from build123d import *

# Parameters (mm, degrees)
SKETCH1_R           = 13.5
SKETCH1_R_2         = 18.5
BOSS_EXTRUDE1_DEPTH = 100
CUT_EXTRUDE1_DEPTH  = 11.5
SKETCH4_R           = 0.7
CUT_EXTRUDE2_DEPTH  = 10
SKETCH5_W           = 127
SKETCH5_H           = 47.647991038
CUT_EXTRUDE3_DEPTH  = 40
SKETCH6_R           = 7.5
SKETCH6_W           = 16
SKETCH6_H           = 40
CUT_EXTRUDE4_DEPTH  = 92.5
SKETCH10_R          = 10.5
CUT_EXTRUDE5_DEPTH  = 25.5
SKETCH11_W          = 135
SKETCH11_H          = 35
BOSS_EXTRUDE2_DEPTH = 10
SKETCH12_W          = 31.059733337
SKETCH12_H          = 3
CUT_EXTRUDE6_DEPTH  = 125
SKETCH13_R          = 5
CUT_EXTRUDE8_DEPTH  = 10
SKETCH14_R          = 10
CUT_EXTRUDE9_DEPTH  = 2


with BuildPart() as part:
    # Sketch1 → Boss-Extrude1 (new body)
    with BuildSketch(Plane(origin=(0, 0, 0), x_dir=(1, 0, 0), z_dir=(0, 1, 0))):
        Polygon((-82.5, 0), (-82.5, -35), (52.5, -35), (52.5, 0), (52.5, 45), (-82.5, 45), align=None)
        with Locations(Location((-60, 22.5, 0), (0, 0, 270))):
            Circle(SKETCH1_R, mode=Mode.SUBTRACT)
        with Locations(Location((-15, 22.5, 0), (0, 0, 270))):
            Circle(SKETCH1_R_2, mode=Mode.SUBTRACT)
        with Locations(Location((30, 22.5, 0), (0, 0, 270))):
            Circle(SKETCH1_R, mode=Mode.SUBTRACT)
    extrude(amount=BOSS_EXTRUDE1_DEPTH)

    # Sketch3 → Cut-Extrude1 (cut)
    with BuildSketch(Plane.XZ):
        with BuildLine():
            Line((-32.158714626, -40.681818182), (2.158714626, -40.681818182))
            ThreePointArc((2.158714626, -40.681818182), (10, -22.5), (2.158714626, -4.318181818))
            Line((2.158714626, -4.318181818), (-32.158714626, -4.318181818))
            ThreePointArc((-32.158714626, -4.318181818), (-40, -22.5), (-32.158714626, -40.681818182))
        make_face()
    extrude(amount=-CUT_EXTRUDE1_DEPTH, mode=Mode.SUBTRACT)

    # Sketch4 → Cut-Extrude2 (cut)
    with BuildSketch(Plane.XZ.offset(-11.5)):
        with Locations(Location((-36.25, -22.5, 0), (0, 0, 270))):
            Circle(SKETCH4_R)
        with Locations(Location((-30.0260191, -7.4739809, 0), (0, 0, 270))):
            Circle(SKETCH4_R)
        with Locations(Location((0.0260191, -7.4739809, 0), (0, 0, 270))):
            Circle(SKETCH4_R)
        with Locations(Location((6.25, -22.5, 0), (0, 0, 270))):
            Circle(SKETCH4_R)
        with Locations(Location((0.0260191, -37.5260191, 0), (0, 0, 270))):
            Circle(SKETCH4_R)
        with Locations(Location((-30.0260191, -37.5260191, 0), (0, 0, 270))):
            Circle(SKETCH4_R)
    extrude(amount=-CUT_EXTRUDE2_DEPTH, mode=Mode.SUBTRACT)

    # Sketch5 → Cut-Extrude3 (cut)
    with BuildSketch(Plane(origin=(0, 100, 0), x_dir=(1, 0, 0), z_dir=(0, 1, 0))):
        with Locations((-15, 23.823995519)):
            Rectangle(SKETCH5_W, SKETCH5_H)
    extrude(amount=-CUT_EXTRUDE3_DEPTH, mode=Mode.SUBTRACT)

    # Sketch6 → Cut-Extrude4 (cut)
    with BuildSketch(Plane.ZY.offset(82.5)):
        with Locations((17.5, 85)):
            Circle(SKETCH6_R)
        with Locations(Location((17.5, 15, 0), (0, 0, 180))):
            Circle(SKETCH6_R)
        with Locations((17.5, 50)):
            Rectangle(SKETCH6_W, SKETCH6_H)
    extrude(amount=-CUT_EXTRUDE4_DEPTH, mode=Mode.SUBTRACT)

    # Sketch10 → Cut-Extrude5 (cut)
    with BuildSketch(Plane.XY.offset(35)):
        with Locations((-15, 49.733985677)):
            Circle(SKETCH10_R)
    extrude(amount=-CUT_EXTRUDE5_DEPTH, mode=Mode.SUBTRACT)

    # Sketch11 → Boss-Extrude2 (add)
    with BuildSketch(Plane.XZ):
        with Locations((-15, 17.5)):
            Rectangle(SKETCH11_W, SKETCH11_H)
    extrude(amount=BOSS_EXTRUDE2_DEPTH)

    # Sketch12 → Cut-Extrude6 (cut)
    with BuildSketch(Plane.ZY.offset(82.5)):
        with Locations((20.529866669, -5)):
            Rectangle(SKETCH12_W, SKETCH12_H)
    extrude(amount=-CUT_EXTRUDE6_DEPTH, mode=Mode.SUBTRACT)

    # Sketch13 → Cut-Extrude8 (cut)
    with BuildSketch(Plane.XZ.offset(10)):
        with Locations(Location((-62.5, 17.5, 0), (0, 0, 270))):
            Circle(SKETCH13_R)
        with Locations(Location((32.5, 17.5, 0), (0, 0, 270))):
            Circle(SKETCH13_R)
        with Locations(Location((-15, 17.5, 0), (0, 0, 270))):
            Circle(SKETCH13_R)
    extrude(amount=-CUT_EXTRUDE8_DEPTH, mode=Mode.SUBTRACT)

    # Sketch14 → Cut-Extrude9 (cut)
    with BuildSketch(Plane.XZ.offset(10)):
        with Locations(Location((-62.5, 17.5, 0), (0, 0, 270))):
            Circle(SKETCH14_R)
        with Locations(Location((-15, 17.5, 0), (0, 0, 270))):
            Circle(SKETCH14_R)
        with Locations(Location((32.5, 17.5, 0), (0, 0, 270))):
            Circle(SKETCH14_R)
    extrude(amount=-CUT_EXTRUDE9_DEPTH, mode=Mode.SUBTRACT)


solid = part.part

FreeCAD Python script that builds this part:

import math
import FreeCAD as App
import Part
import Sketcher
from FreeCAD import Vector


def add_polygon(sketch, points):
    """Adds a closed chain of lines whose ends are joined by coincident constraints."""
    first, n = sketch.GeometryCount, len(points)
    for a, b in zip(points, points[1:] + points[:1]):
        sketch.addGeometry(Part.LineSegment(App.Vector(*a, 0), App.Vector(*b, 0)), False)
    for i in range(n):
        sketch.addConstraint(Sketcher.Constraint("Coincident", first + i, 2, first + (i + 1) % n, 1))

doc = App.newDocument("Part")
body = doc.addObject("PartDesign::Body", "Body")

# Sketch on XZ plane
sketch1 = doc.addObject("Sketcher::SketchObject", "Sketch")
body.addObject(sketch1)
sketch1.AttachmentSupport = (doc.XZ_Plane, [""])
sketch1.MapMode = "FlatFace"
add_polygon(sketch1, [(-82, 35), (52, 35), (52, -45), (-82, -45)])  # lines 0-3
sketch1.addGeometry(Part.Circle(Vector(-60, -22, 0), Vector(0, 0, 1), 14), False)  # 4
sketch1.addGeometry(Part.Circle(Vector(-15, -22, 0), Vector(0, 0, 1), 18), False)  # 5
sketch1.addGeometry(Part.Circle(Vector(30, -22, 0), Vector(0, 0, 1), 14), False)  # 6
sketch1.addConstraint([
    Sketcher.Constraint("Horizontal", 0),
    Sketcher.Constraint("Vertical", 1),
    Sketcher.Constraint("Horizontal", 2),
    Sketcher.Constraint("Vertical", 3),
    Sketcher.Constraint("Equal", 4, 6),
    Sketcher.Constraint("Horizontal", 4, 3, 5, 3),
    Sketcher.Constraint("Horizontal", 5, 3, 6, 3),
    Sketcher.Constraint("Diameter", 4, 27.0),
    Sketcher.Constraint("Diameter", 5, 37.0),
    Sketcher.Constraint("DistanceX", 0, 1, 0, 2, 135.0),
    Sketcher.Constraint("DistanceY", 1, 2, 1, 1, 80.0),
    Sketcher.Constraint("DistanceX", 4, 3, -1, 1, 60.0),
    Sketcher.Constraint("DistanceX", 5, 3, -1, 1, 15.0),
    Sketcher.Constraint("DistanceX", -1, 1, 6, 3, 30.0),
    Sketcher.Constraint("DistanceY", -1, 1, 0, 2, 35.0),
    Sketcher.Constraint("DistanceY", 4, 3, -1, 1, 22.5),
    Sketcher.Constraint("DistanceX", -1, 1, 0, 2, 52.5),
])
pad1 = doc.addObject("PartDesign::Pad", "Pad")
body.addObject(pad1)
pad1.Profile = sketch1
pad1.Length = 100
pad1.Reversed = True

# Sketch on XZ plane
sketch2 = doc.addObject("Sketcher::SketchObject", "Sketch001")
body.addObject(sketch2)
sketch2.AttachmentSupport = (doc.XZ_Plane, [""])
sketch2.MapMode = "FlatFace"
sketch2.addGeometry([
    Part.LineSegment(Vector(-32, -41, 0), Vector(2, -41, 0)),
    Part.ArcOfCircle(Part.Circle(Vector(-15, -22, 0), Vector(0, 0, 1), 25), math.radians(-47), math.radians(47)),
    Part.LineSegment(Vector(2, -4, 0), Vector(-32, -4, 0)),
    Part.ArcOfCircle(Part.Circle(Vector(-15, -22, 0), Vector(0, 0, 1), 25), math.radians(133), math.radians(227)),
], False)
sketch2.addConstraint([
    Sketcher.Constraint("Coincident", 0, 2, 1, 1),
    Sketcher.Constraint("Coincident", 1, 2, 2, 1),
    Sketcher.Constraint("Coincident", 2, 2, 3, 1),
    Sketcher.Constraint("Coincident", 3, 2, 0, 1),
    Sketcher.Constraint("Horizontal", 0),
    Sketcher.Constraint("Horizontal", 2),
    Sketcher.Constraint("Coincident", 3, 3, 1, 3),
    Sketcher.Constraint("Equal", 1, 3),
    Sketcher.Constraint("Vertical", 0, 2, 1, 2),
    Sketcher.Constraint("Radius", 1, 25.0),
    Sketcher.Constraint("DistanceX", 1, 3, -1, 1, 15.0),
    Sketcher.Constraint("DistanceY", 1, 3, -1, 1, 22.5),
    Sketcher.Constraint("DistanceX", 0, 1, 0, 2, 34.317429),
])
pocket1 = doc.addObject("PartDesign::Pocket", "Pocket")
body.addObject(pocket1)
pocket1.Profile = sketch2
pocket1.Length = 11.5

# Sketch on XZ plane
sketch3 = doc.addObject("Sketcher::SketchObject", "Sketch002")
body.addObject(sketch3)
sketch3.AttachmentSupport = (doc.XZ_Plane, [""])
sketch3.MapMode = "FlatFace"
sketch3.AttachmentOffset = App.Placement(Vector(0, 0, -11.5), App.Rotation())
sketch3.addGeometry([
    Part.Circle(Vector(-36.2, -22.5, 0), Vector(0, 0, 1), 0.7),  # 0
    Part.Circle(Vector(-30, -7.5, 0), Vector(0, 0, 1), 0.7),  # 1
    Part.Circle(Vector(0, -7.5, 0), Vector(0, 0, 1), 0.7),  # 2
    Part.Circle(Vector(6.2, -22.5, 0), Vector(0, 0, 1), 0.7),  # 3
    Part.Circle(Vector(0, -37.5, 0), Vector(0, 0, 1), 0.7),  # 4
    Part.Circle(Vector(-30, -37.5, 0), Vector(0, 0, 1), 0.7),  # 5
], False)
sketch3.addConstraint([
    Sketcher.Constraint("Equal", 0, 1),
    Sketcher.Constraint("Equal", 1, 2),
    Sketcher.Constraint("Equal", 2, 3),
    Sketcher.Constraint("Equal", 3, 4),
    Sketcher.Constraint("Equal", 4, 5),
    Sketcher.Constraint("Horizontal", 1, 3, 2, 3),
    Sketcher.Constraint("Horizontal", 0, 3, 3, 3),
    Sketcher.Constraint("Horizontal", 4, 3, 5, 3),
    Sketcher.Constraint("Vertical", 2, 3, 4, 3),
    Sketcher.Constraint("Vertical", 1, 3, 5, 3),
    Sketcher.Constraint("Diameter", 0, 1.4),
    Sketcher.Constraint("DistanceY", 0, 3, -1, 1, 22.5),
    Sketcher.Constraint("DistanceX", 0, 3, 3, 3, 42.5),
    Sketcher.Constraint("DistanceX", 0, 3, -1, 1, 36.25),
    Sketcher.Constraint("DistanceX", 1, 3, -1, 1, 30.026019),
    Sketcher.Constraint("DistanceY", 1, 3, -1, 1, 7.473981),
    Sketcher.Constraint("DistanceX", -1, 1, 2, 3, 0.026019),
    Sketcher.Constraint("DistanceY", 4, 3, -1, 1, 37.526019),
])
pocket2 = doc.addObject("PartDesign::Pocket", "Pocket001")
body.addObject(pocket2)
pocket2.Profile = sketch3
pocket2.Length = 10

# Sketch on XZ plane
sketch4 = doc.addObject("Sketcher::SketchObject", "Sketch003")
body.addObject(sketch4)
sketch4.AttachmentSupport = (doc.XZ_Plane, [""])
sketch4.MapMode = "FlatFace"
sketch4.AttachmentOffset = App.Placement(Vector(0, 0, -100), App.Rotation())
add_polygon(sketch4, [(-78, -48), (-78, 0), (48, 0), (48, -48)])  # lines 0-3
sketch4.addConstraint([
    Sketcher.Constraint("Vertical", 0),
    Sketcher.Constraint("Horizontal", 1),
    Sketcher.Constraint("Vertical", 2),
    Sketcher.Constraint("Horizontal", 3),
    Sketcher.Constraint("PointOnObject", 0, 2, -1),
    Sketcher.Constraint("DistanceX", 1, 1, 1, 2, 127.0),
    Sketcher.Constraint("DistanceX", 0, 2, -1, 1, 78.5),
    Sketcher.Constraint("DistanceY", 0, 1, 0, 2, 47.647991),
])
pocket3 = doc.addObject("PartDesign::Pocket", "Pocket002")
body.addObject(pocket3)
pocket3.Profile = sketch4
pocket3.Length = 40
pocket3.Reversed = True

# Sketch on YZ plane
sketch5 = doc.addObject("Sketcher::SketchObject", "Sketch004")
body.addObject(sketch5)
sketch5.AttachmentSupport = (doc.YZ_Plane, [""])
sketch5.MapMode = "FlatFace"
sketch5.AttachmentOffset = App.Placement(Vector(0, 0, -82.5), App.Rotation())
sketch5.addGeometry(Part.Circle(Vector(85, 18, 0), Vector(0, 0, 1), 8), False)  # 0
sketch5.addGeometry(Part.Circle(Vector(15, 18, 0), Vector(0, 0, 1), 8), False)  # 1
add_polygon(sketch5, [(70, 10), (30, 10), (30, 26), (70, 26)])  # lines 2-5
sketch5.addConstraint([
    Sketcher.Constraint("Horizontal", 2),
    Sketcher.Constraint("Vertical", 3),
    Sketcher.Constraint("Horizontal", 4),
    Sketcher.Constraint("Vertical", 5),
    Sketcher.Constraint("Equal", 0, 1),
    Sketcher.Constraint("Horizontal", 0, 3, 1, 3),
    Sketcher.Constraint("Diameter", 0, 15.0),
    Sketcher.Constraint("DistanceX", 2, 2, 2, 1, 40.0),
    Sketcher.Constraint("DistanceY", 3, 1, 3, 2, 16.0),
    Sketcher.Constraint("DistanceX", -1, 1, 0, 3, 85.0),
    Sketcher.Constraint("DistanceX", -1, 1, 1, 3, 15.0),
    Sketcher.Constraint("DistanceX", -1, 1, 2, 2, 30.0),
    Sketcher.Constraint("DistanceY", 2, 2, 1, 3, 8.0),
    Sketcher.Constraint("DistanceY", -1, 1, 0, 3, 17.5),
])
pocket4 = doc.addObject("PartDesign::Pocket", "Pocket003")
body.addObject(pocket4)
pocket4.Profile = sketch5
pocket4.Length = 92.5
pocket4.Reversed = True

# Sketch on XY plane
sketch6 = doc.addObject("Sketcher::SketchObject", "Sketch005")
body.addObject(sketch6)
sketch6.AttachmentSupport = (doc.XY_Plane, [""])
sketch6.MapMode = "FlatFace"
sketch6.AttachmentOffset = App.Placement(Vector(0, 0, 35), App.Rotation())
sketch6.addGeometry(Part.Circle(Vector(-15, 50, 0), Vector(0, 0, 1), 10), False)
sketch6.addConstraint([
    Sketcher.Constraint("Diameter", 0, 21.0),
    Sketcher.Constraint("DistanceX", 0, 3, -1, 1, 15.0),
    Sketcher.Constraint("DistanceY", -1, 1, 0, 3, 49.733986),
])
pocket5 = doc.addObject("PartDesign::Pocket", "Pocket004")
body.addObject(pocket5)
pocket5.Profile = sketch6
pocket5.Length = 25.5

# Sketch on XZ plane
sketch7 = doc.addObject("Sketcher::SketchObject", "Sketch006")
body.addObject(sketch7)
sketch7.AttachmentSupport = (doc.XZ_Plane, [""])
sketch7.MapMode = "FlatFace"
add_polygon(sketch7, [(-82, 35), (-82, 0), (52, 0), (52, 35)])  # lines 0-3
sketch7.addConstraint([
    Sketcher.Constraint("Vertical", 0),
    Sketcher.Constraint("Horizontal", 1),
    Sketcher.Constraint("Vertical", 2),
    Sketcher.Constraint("Horizontal", 3),
    Sketcher.Constraint("PointOnObject", 0, 2, -1),
    Sketcher.Constraint("DistanceX", 1, 1, 1, 2, 135.0),
    Sketcher.Constraint("DistanceY", 0, 2, 0, 1, 35.0),
    Sketcher.Constraint("DistanceX", 0, 2, -1, 1, 82.5),
])
pad2 = doc.addObject("PartDesign::Pad", "Pad001")
body.addObject(pad2)
pad2.Profile = sketch7
pad2.Length = 10

# Sketch on YZ plane
sketch8 = doc.addObject("Sketcher::SketchObject", "Sketch007")
body.addObject(sketch8)
sketch8.AttachmentSupport = (doc.YZ_Plane, [""])
sketch8.MapMode = "FlatFace"
sketch8.AttachmentOffset = App.Placement(Vector(0, 0, -82.5), App.Rotation())
add_polygon(sketch8, [(-3.5, 5), (-6.5, 5), (-6.5, 36.1), (-3.5, 36.1)])  # lines 0-3
sketch8.addConstraint([
    Sketcher.Constraint("Horizontal", 0),
    Sketcher.Constraint("Vertical", 1),
    Sketcher.Constraint("Horizontal", 2),
    Sketcher.Constraint("Vertical", 3),
    Sketcher.Constraint("DistanceX", 0, 2, 0, 1, 3.0),
    Sketcher.Constraint("DistanceY", -1, 1, 0, 2, 5.0),
    Sketcher.Constraint("DistanceX", 0, 2, -1, 1, 6.5),
    Sketcher.Constraint("DistanceY", 1, 1, 1, 2, 31.059733),
])
pocket6 = doc.addObject("PartDesign::Pocket", "Pocket005")
body.addObject(pocket6)
pocket6.Profile = sketch8
pocket6.Length = 125
pocket6.Reversed = True

# Sketch on XZ plane
sketch9 = doc.addObject("Sketcher::SketchObject", "Sketch008")
body.addObject(sketch9)
sketch9.AttachmentSupport = (doc.XZ_Plane, [""])
sketch9.MapMode = "FlatFace"
sketch9.AttachmentOffset = App.Placement(Vector(0, 0, 10), App.Rotation())
sketch9.addGeometry([
    Part.Circle(Vector(-62, 18, 0), Vector(0, 0, 1), 5),
    Part.Circle(Vector(32, 18, 0), Vector(0, 0, 1), 5),
    Part.Circle(Vector(-15, 18, 0), Vector(0, 0, 1), 5),
], False)
sketch9.addConstraint([
    Sketcher.Constraint("Equal", 0, 1),
    Sketcher.Constraint("Equal", 1, 2),
    Sketcher.Constraint("Horizontal", 0, 3, 1, 3),
    Sketcher.Constraint("Horizontal", 1, 3, 2, 3),
    Sketcher.Constraint("Diameter", 0, 10.0),
    Sketcher.Constraint("DistanceX", 2, 3, -1, 1, 15.0),
    Sketcher.Constraint("DistanceX", 0, 3, 1, 3, 95.0),
    Sketcher.Constraint("DistanceX", 0, 3, -1, 1, 62.5),
    Sketcher.Constraint("DistanceY", -1, 1, 0, 3, 17.5),
])
pocket7 = doc.addObject("PartDesign::Pocket", "Pocket006")
body.addObject(pocket7)
pocket7.Profile = sketch9
pocket7.Length = 10

# Sketch on XZ plane
sketch10 = doc.addObject("Sketcher::SketchObject", "Sketch009")
body.addObject(sketch10)
sketch10.AttachmentSupport = (doc.XZ_Plane, [""])
sketch10.MapMode = "FlatFace"
sketch10.AttachmentOffset = App.Placement(Vector(0, 0, 10), App.Rotation())
sketch10.addGeometry([
    Part.Circle(Vector(-62, 18, 0), Vector(0, 0, 1), 10),
    Part.Circle(Vector(-15, 18, 0), Vector(0, 0, 1), 10),
    Part.Circle(Vector(32, 18, 0), Vector(0, 0, 1), 10),
], False)
sketch10.addConstraint([
    Sketcher.Constraint("Equal", 0, 1),
    Sketcher.Constraint("Equal", 1, 2),
    Sketcher.Constraint("Horizontal", 0, 3, 1, 3),
    Sketcher.Constraint("Horizontal", 1, 3, 2, 3),
    Sketcher.Constraint("Diameter", 0, 20.0),
    Sketcher.Constraint("DistanceX", 1, 3, -1, 1, 15.0),
    Sketcher.Constraint("DistanceX", 0, 3, 2, 3, 95.0),
    Sketcher.Constraint("DistanceX", 0, 3, -1, 1, 62.5),
    Sketcher.Constraint("DistanceY", -1, 1, 0, 3, 17.5),
])
pocket8 = doc.addObject("PartDesign::Pocket", "Pocket007")
body.addObject(pocket8)
pocket8.Profile = sketch10
pocket8.Length = 2

doc.recompute()
